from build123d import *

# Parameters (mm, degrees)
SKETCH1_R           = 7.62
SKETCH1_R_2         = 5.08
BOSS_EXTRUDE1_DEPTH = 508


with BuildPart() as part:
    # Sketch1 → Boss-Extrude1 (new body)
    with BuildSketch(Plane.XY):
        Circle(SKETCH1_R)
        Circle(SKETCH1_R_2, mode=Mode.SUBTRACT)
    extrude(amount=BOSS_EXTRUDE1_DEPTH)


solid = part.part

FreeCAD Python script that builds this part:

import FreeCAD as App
import Part
import Sketcher

V = App.Vector
Q = App.Units.Quantity

doc = App.newDocument("Part")
body = doc.addObject("PartDesign::Body", "Body")

# Sketch on XY plane
sketch1 = body.newObject("Sketcher::SketchObject", "Sketch")
sketch1.AttachmentSupport = (doc.getObject("XY_Plane"), [""])
sketch1.MapMode = "FlatFace"
sketch1.addGeometry([
    Part.Circle(V(0, 0, 0), V(0, 0, 1), 7.62),
    Part.Circle(V(0, 0, 0), V(0, 0, 1), 5.08),
], False)
sketch1.addConstraint([
    Sketcher.Constraint("Coincident", 0, 3, -1, 1),
    Sketcher.Constraint("Coincident", 1, 3, -1, 1),
    Sketcher.Constraint("Diameter", 0, Q("0.6 in")),
    Sketcher.Constraint("Diameter", 1, Q("0.4 in")),
])
pad1 = body.newObject("PartDesign::Pad", "Pad")
pad1.Profile = sketch1
pad1.Length = Q("20 in")

doc.recompute()
